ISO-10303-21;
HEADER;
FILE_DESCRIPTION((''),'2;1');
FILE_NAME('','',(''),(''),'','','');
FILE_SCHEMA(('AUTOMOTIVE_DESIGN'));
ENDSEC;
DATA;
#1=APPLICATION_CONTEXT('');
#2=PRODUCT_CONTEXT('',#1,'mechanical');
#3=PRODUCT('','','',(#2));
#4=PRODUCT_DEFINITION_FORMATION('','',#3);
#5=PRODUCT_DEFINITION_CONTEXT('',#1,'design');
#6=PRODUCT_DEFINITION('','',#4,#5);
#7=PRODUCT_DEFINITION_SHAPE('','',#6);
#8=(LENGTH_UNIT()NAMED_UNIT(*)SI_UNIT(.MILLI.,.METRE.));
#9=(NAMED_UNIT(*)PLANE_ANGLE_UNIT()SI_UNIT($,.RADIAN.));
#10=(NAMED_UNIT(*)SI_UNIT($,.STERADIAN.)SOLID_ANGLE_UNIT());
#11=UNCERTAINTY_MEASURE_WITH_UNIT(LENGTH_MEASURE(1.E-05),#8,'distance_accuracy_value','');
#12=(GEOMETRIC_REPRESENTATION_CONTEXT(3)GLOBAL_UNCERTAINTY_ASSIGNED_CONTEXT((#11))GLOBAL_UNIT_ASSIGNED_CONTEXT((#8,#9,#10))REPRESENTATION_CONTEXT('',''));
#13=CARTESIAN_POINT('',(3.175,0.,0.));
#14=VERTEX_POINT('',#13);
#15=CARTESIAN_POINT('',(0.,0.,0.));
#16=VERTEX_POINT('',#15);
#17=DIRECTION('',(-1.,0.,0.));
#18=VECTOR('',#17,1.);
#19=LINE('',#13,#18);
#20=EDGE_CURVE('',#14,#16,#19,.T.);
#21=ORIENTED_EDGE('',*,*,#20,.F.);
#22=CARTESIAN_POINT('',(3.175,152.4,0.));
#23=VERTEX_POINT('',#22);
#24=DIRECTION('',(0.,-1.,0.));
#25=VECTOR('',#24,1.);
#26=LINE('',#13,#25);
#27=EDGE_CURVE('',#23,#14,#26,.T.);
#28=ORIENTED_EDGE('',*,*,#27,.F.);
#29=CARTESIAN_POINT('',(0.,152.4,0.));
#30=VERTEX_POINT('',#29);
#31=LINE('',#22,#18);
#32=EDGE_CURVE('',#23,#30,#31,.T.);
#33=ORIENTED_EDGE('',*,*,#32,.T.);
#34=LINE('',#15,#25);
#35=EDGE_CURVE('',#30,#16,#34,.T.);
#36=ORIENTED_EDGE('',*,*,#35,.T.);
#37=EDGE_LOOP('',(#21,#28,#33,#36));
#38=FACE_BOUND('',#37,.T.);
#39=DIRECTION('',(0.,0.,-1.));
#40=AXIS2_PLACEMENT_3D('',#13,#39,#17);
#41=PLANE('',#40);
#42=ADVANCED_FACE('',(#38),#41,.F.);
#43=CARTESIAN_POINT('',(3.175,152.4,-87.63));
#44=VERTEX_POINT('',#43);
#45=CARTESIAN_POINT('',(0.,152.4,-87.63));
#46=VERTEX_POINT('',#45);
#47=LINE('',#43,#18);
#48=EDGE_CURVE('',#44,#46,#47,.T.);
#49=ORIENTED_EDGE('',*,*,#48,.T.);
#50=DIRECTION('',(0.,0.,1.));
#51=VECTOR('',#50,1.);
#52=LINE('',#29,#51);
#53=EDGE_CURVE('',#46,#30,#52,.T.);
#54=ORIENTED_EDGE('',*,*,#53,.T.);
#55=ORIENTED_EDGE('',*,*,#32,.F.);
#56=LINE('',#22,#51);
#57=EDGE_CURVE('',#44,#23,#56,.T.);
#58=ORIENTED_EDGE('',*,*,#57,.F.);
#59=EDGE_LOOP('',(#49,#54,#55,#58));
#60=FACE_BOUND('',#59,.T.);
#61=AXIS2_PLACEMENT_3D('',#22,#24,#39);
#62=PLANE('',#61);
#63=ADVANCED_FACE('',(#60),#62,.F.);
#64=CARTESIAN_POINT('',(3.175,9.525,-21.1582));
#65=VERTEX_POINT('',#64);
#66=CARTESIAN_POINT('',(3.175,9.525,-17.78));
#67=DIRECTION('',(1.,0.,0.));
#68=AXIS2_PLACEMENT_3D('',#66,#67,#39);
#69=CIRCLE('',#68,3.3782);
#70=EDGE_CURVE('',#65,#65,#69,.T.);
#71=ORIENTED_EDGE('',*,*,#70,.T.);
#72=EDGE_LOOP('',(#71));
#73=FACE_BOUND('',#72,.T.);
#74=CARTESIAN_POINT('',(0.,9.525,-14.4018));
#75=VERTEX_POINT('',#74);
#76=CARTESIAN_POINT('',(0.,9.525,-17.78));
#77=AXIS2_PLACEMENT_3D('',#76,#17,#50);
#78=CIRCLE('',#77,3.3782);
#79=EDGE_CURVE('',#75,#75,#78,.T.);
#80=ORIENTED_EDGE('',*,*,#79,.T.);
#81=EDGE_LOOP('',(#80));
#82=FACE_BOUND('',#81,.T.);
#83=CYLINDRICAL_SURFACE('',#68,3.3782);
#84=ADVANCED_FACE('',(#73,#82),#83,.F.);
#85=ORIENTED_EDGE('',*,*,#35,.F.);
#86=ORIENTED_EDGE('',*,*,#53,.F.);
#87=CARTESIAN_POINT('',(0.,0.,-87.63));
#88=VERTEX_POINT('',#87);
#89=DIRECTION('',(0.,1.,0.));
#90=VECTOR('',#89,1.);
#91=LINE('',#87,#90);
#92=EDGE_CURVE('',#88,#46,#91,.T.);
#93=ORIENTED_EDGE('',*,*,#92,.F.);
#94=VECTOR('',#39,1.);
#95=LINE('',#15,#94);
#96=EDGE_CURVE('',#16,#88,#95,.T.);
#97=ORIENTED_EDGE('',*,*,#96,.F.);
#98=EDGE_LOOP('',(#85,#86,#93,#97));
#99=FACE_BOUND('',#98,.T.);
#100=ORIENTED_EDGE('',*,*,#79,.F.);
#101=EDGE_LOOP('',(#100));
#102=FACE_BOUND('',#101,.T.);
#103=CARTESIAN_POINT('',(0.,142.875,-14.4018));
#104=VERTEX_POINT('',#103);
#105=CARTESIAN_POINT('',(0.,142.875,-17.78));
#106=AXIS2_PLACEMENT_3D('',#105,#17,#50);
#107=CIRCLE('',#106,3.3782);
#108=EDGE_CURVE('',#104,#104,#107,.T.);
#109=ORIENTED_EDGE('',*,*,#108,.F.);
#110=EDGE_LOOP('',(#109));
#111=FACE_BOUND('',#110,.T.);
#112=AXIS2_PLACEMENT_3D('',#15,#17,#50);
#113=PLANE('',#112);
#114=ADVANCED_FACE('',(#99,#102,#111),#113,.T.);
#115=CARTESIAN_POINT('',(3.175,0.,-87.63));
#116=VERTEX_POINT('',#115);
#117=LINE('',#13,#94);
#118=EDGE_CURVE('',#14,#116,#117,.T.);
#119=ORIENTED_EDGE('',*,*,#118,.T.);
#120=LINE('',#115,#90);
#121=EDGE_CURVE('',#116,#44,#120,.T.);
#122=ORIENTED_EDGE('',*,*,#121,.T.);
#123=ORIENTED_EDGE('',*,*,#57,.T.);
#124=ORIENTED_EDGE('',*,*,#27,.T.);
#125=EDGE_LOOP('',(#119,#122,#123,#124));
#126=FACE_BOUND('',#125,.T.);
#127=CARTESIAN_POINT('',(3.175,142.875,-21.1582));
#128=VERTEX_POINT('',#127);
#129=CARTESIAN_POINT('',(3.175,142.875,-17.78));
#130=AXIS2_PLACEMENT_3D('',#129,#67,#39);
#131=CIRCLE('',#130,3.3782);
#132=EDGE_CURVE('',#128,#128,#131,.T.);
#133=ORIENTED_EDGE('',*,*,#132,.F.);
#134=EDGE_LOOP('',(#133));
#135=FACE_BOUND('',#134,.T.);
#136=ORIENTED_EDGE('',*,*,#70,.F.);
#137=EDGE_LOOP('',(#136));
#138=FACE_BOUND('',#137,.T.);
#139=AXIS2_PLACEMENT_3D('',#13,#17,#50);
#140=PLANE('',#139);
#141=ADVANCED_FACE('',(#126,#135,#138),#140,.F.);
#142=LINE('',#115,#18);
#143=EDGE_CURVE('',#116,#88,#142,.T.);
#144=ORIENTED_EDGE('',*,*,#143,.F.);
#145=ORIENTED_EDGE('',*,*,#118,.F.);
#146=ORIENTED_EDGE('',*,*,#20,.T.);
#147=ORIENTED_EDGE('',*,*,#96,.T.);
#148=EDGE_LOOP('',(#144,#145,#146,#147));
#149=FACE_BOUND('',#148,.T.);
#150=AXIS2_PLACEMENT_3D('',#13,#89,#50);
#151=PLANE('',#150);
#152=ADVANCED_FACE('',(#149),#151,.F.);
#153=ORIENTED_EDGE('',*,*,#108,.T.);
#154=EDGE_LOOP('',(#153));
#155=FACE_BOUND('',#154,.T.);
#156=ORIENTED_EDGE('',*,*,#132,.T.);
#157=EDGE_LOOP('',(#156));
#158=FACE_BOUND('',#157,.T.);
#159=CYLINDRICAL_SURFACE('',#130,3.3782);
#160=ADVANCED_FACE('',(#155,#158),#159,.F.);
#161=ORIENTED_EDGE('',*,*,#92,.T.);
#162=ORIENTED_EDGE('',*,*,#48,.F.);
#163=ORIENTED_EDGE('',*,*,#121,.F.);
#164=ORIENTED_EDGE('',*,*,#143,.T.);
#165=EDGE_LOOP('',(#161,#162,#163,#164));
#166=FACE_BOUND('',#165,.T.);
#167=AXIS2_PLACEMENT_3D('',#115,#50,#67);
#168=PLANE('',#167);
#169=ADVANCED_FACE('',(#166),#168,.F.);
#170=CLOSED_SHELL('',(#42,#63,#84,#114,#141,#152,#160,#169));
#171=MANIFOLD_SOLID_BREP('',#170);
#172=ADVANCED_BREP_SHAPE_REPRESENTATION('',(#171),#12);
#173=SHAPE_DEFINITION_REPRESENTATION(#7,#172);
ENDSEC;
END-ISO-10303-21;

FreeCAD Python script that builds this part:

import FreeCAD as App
import Part
import Sketcher
Q = App.Units.Quantity

doc = App.newDocument("Part")
body = doc.addObject("PartDesign::Body", "Body")

# Sketch on YZ plane
sketch1 = doc.addObject("Sketcher::SketchObject", "Sketch")
body.addObject(sketch1)
sketch1.AttachmentSupport = (doc.YZ_Plane, [""])
sketch1.MapMode = "FlatFace"
sketch1.addGeometry([
    Part.LineSegment(App.Vector(152, 0, 0), App.Vector(0, 0, 0)),
    Part.LineSegment(App.Vector(0, 0, 0), App.Vector(0, -88, 0)),
    Part.LineSegment(App.Vector(0, -88, 0), App.Vector(152, -88, 0)),
    Part.LineSegment(App.Vector(152, -88, 0), App.Vector(152, 0, 0)),
], False)
sketch1.addConstraint([
    Sketcher.Constraint("Coincident", 0, 2, 1, 1),
    Sketcher.Constraint("Coincident", 1, 2, 2, 1),
    Sketcher.Constraint("Coincident", 2, 2, 3, 1),
    Sketcher.Constraint("Coincident", 3, 2, 0, 1),
    Sketcher.Constraint("Horizontal", 0),
    Sketcher.Constraint("Vertical", 1),
    Sketcher.Constraint("Horizontal", 2),
    Sketcher.Constraint("Vertical", 3),
    Sketcher.Constraint("Coincident", 0, 2, -1, 1),
    Sketcher.Constraint("DistanceX", 0, 2, 0, 1, Q("6 in")),
    Sketcher.Constraint("DistanceY", 1, 2, 1, 1, Q("3.45 in")),
])
pad1 = doc.addObject("PartDesign::Pad", "Pad")
body.addObject(pad1)
pad1.Profile = sketch1
pad1.Length = Q("0.125 in")

# Sketch on YZ plane
sketch2 = doc.addObject("Sketcher::SketchObject", "Sketch001")
body.addObject(sketch2)
sketch2.AttachmentSupport = (doc.YZ_Plane, [""])
sketch2.MapMode = "FlatFace"
sketch2.AttachmentOffset = App.Placement(App.Vector(0, 0, 0.125 * 25.4), App.Rotation())
sketch2.addGeometry([
    Part.Circle(App.Vector(142.9, -17.8, 0), App.Vector(0, 0, 1), 3.4),
    Part.Circle(App.Vector(9.5, -17.8, 0), App.Vector(0, 0, 1), 3.4),
], False)
sketch2.addConstraint([
    Sketcher.Constraint("Equal", 0, 1),
    Sketcher.Constraint("Horizontal", 0, 3, 1, 3),
    Sketcher.Constraint("Diameter", 0, Q("0.266 in")),
    Sketcher.Constraint("DistanceY", 0, 3, -1, 1, Q("0.7 in")),
    Sketcher.Constraint("DistanceX", 1, 3, 0, 3, Q("5.25 in")),
    Sketcher.Constraint("DistanceX", -1, 1, 0, 3, Q("5.625 in")),
])
doc.recompute()
hole = doc.addObject("PartDesign::Hole", "Hole")
body.addObject(hole)
hole.Profile = sketch2
hole.ThreadType = "None"
hole.Diameter = Q("0.266 in")
hole.DepthType = "ThroughAll"

doc.recompute()
